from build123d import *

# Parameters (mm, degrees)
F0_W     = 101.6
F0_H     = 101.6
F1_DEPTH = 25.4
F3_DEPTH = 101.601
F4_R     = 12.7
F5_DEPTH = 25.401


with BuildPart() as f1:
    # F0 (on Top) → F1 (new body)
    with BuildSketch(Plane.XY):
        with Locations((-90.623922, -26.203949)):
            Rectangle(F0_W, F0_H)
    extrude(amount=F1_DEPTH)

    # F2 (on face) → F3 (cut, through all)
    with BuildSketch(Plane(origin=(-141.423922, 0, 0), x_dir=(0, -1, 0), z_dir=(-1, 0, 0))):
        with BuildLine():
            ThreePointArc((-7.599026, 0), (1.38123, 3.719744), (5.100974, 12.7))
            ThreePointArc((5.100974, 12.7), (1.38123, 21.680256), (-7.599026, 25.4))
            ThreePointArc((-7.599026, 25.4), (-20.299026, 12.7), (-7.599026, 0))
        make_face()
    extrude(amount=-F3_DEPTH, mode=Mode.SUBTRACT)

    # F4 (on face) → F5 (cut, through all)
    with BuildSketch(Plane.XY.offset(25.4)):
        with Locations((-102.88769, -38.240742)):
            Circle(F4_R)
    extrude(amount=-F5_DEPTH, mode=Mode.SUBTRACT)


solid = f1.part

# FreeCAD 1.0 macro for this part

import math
import FreeCAD as App
import Part
import Sketcher

V = App.Vector
Q = App.Units.Quantity


def add_polygon(sketch, points):
    """Adds a closed chain of lines whose ends are joined by coincident constraints."""
    first, n = sketch.GeometryCount, len(points)
    for a, b in zip(points, points[1:] + points[:1]):
        sketch.addGeometry(Part.LineSegment(App.Vector(*a, 0), App.Vector(*b, 0)), False)
    for i in range(n):
        sketch.addConstraint(Sketcher.Constraint("Coincident", first + i, 2, first + (i + 1) % n, 1))

doc = App.newDocument("Part")
body = doc.addObject("PartDesign::Body", "Body")
body.AllowCompound = True

sketch1 = doc.addObject("Sketcher::SketchObject", "Sketch")
body.addObject(sketch1)
sketch1.AttachmentSupport = (doc.XY_Plane, [""])
sketch1.MapMode = "FlatFace"
add_polygon(sketch1, [(-141, 25), (-141, -77), (-40, -77), (-40, 25)])
sketch1.addConstraint(Sketcher.Constraint("Vertical", 0))
sketch1.addConstraint(Sketcher.Constraint("Horizontal", 1))
sketch1.addConstraint(Sketcher.Constraint("Vertical", 2))
sketch1.addConstraint(Sketcher.Constraint("Horizontal", 3))
sketch1.addConstraint(Sketcher.Constraint("Equal", 3, 0))
sketch1.addConstraint(Sketcher.Constraint("DistanceX", 1, 1, 1, 2, Q("4 in")))
sketch1.addConstraint(Sketcher.Constraint("DistanceX", 0, 2, -1, 1, Q("141.423922 mm")))
sketch1.addConstraint(Sketcher.Constraint("DistanceY", 0, 2, -1, 1, Q("77.003949 mm")))
pad1 = doc.addObject("PartDesign::Pad", "Pad")
body.addObject(pad1)
pad1.Profile = sketch1
pad1.Length = Q("1 in")

sketch2 = doc.addObject("Sketcher::SketchObject", "Sketch001")
body.addObject(sketch2)
sketch2.AttachmentSupport = (doc.YZ_Plane, [""])
sketch2.MapMode = "FlatFace"
sketch2.AttachmentOffset = App.Placement(V(0, 0, -141.423922), App.Rotation())
sketch2.addGeometry(Part.ArcOfCircle(Part.Circle(V(8, 13, 0), V(0, 0, 1), 13), math.radians(-180), math.radians(-90)), False)
sketch2.addGeometry(Part.ArcOfCircle(Part.Circle(V(8, 13, 0), V(0, 0, 1), 13), math.radians(90), math.radians(180)), False)
sketch2.addGeometry(Part.ArcOfCircle(Part.Circle(V(8, 13, 0), V(0, 0, 1), 13), math.radians(-90), math.radians(90)), False)
sketch2.addConstraint(Sketcher.Constraint("Tangent", 0, 1, 1, 2))
sketch2.addConstraint(Sketcher.Constraint("Tangent", 1, 1, 2, 2))
sketch2.addConstraint(Sketcher.Constraint("Tangent", 2, 1, 0, 2))
sketch2.addConstraint(Sketcher.Constraint("PointOnObject", 2, 1, -1))
sketch2.addConstraint(Sketcher.Constraint("Horizontal", 2, 3, 0, 1))
sketch2.addConstraint(Sketcher.Constraint("Vertical", 2, 3, 1, 1))
sketch2.addConstraint(Sketcher.Constraint("Vertical", 1, 1, 2, 1))
sketch2.addConstraint(Sketcher.Constraint("Radius", 0, Q("0.5 in")))
sketch2.addConstraint(Sketcher.Constraint("DistanceX", -1, 1, 0, 3, Q("7.599026 mm")))
pocket1 = doc.addObject("PartDesign::Pocket", "Pocket")
body.addObject(pocket1)
pocket1.Profile = sketch2
pocket1.Type = "ThroughAll"
pocket1.Reversed = True

sketch3 = doc.addObject("Sketcher::SketchObject", "Sketch002")
body.addObject(sketch3)
sketch3.AttachmentSupport = (doc.XY_Plane, [""])
sketch3.MapMode = "FlatFace"
sketch3.AttachmentOffset = App.Placement(V(0, 0, 1 * 25.4), App.Rotation())
sketch3.addGeometry(Part.Circle(V(-103, -38, 0), V(0, 0, 1), 13), False)
sketch3.addConstraint(Sketcher.Constraint("Diameter", 0, Q("1 in")))
sketch3.addConstraint(Sketcher.Constraint("DistanceX", 0, 3, -1, 1, Q("102.88769 mm")))
sketch3.addConstraint(Sketcher.Constraint("DistanceY", 0, 3, -1, 1, Q("38.240742 mm")))
pocket2 = doc.addObject("PartDesign::Pocket", "Pocket001")
body.addObject(pocket2)
pocket2.Profile = sketch3
pocket2.Type = "ThroughAll"

doc.recompute()
